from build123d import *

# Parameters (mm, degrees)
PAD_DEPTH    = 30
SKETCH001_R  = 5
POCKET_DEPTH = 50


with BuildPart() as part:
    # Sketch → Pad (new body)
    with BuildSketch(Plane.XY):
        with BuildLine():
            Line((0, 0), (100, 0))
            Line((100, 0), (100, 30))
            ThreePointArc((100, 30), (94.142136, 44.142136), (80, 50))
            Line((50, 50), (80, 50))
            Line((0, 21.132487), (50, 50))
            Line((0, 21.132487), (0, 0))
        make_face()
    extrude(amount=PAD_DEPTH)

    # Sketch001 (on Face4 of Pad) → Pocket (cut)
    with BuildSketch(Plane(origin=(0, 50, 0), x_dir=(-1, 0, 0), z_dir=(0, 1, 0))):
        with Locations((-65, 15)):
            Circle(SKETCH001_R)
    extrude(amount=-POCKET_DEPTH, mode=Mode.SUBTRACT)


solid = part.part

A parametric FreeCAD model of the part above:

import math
import FreeCAD as App
import Part
import Sketcher

V = App.Vector
Q = App.Units.Quantity

doc = App.newDocument("Part")
body = doc.addObject("PartDesign::Body", "Body")

sketch1 = body.newObject("Sketcher::SketchObject", "Sketch")
sketch1.AttachmentSupport = (doc.getObject("XY_Plane"), [""])
sketch1.MapMode = "FlatFace"
sketch1.addGeometry(Part.LineSegment(V(0, 0, 0), V(100, 0, 0)), False)
sketch1.addGeometry(Part.LineSegment(V(100, 0, 0), V(100, 30, 0)), False)
sketch1.addGeometry(Part.ArcOfCircle(Part.Circle(V(80.000001, 30.000001, 0), V(0, 0, 1), 19.999999), math.radians(-0.000004), math.radians(90.000004)), False)
sketch1.addGeometry(Part.LineSegment(V(80, 50, 0), V(50, 50, 0)), False)
sketch1.addGeometry(Part.LineSegment(V(50, 50, 0), V(0, 21.132487, 0)), False)
sketch1.addGeometry(Part.LineSegment(V(0, 21.132487, 0), V(0, 0, 0)), False)
sketch1.addConstraint(Sketcher.Constraint("Coincident", 0, 2, 1, 1))
sketch1.addConstraint(Sketcher.Constraint("Tangent", 1, 2, 2, 1))
sketch1.addConstraint(Sketcher.Constraint("Tangent", 2, 2, 3, 1))
sketch1.addConstraint(Sketcher.Constraint("Coincident", 3, 2, 4, 1))
sketch1.addConstraint(Sketcher.Constraint("Coincident", 4, 2, 5, 1))
sketch1.addConstraint(Sketcher.Constraint("Coincident", 5, 2, 0, 1))
sketch1.addConstraint(Sketcher.Constraint("Horizontal", 0))
sketch1.addConstraint(Sketcher.Constraint("Vertical", 1))
sketch1.addConstraint(Sketcher.Constraint("Horizontal", 3))
sketch1.addConstraint(Sketcher.Constraint("Vertical", 5))
sketch1.addConstraint(Sketcher.Constraint("Coincident", 5, 2, -1, 1))
sketch1.addConstraint(Sketcher.Constraint("Equal", 3, 1))
sketch1.addConstraint(Sketcher.Constraint("Radius", 2, Q("19.999999 mm")))
sketch1.addConstraint(Sketcher.Constraint("DistanceX", 0, 1, 0, 2, Q("100 mm")))
sketch1.addConstraint(Sketcher.Constraint("DistanceX", 3, 2, 3, 1, Q("30 mm")))
sketch1.addConstraint(Sketcher.Constraint("Angle", 4, Q("-150 deg")))
pad1 = body.newObject("PartDesign::Pad", "Pad")
pad1.Profile = sketch1
pad1.Length = 30

sketch2 = body.newObject("Sketcher::SketchObject", "Sketch001")
sketch2.AttachmentSupport = (doc.getObject("XZ_Plane"), [""])
sketch2.MapMode = "FlatFace"
sketch2.AttachmentOffset = App.Placement(V(0, 0, -50), App.Rotation())
sketch2.addGeometry(Part.Circle(V(65, 15, 0), V(0, 0, 1), 5), False)
sketch2.addConstraint(Sketcher.Constraint("Diameter", 0, Q("10 mm")))
sketch2.addConstraint(Sketcher.Constraint("DistanceX", -1, 1, 0, 3, Q("65 mm")))
sketch2.addConstraint(Sketcher.Constraint("DistanceY", -1, 1, 0, 3, Q("15 mm")))
pocket1 = body.newObject("PartDesign::Pocket", "Pocket")
pocket1.Profile = sketch2
pocket1.Length = 50
pocket1.Reversed = True

doc.recompute()
